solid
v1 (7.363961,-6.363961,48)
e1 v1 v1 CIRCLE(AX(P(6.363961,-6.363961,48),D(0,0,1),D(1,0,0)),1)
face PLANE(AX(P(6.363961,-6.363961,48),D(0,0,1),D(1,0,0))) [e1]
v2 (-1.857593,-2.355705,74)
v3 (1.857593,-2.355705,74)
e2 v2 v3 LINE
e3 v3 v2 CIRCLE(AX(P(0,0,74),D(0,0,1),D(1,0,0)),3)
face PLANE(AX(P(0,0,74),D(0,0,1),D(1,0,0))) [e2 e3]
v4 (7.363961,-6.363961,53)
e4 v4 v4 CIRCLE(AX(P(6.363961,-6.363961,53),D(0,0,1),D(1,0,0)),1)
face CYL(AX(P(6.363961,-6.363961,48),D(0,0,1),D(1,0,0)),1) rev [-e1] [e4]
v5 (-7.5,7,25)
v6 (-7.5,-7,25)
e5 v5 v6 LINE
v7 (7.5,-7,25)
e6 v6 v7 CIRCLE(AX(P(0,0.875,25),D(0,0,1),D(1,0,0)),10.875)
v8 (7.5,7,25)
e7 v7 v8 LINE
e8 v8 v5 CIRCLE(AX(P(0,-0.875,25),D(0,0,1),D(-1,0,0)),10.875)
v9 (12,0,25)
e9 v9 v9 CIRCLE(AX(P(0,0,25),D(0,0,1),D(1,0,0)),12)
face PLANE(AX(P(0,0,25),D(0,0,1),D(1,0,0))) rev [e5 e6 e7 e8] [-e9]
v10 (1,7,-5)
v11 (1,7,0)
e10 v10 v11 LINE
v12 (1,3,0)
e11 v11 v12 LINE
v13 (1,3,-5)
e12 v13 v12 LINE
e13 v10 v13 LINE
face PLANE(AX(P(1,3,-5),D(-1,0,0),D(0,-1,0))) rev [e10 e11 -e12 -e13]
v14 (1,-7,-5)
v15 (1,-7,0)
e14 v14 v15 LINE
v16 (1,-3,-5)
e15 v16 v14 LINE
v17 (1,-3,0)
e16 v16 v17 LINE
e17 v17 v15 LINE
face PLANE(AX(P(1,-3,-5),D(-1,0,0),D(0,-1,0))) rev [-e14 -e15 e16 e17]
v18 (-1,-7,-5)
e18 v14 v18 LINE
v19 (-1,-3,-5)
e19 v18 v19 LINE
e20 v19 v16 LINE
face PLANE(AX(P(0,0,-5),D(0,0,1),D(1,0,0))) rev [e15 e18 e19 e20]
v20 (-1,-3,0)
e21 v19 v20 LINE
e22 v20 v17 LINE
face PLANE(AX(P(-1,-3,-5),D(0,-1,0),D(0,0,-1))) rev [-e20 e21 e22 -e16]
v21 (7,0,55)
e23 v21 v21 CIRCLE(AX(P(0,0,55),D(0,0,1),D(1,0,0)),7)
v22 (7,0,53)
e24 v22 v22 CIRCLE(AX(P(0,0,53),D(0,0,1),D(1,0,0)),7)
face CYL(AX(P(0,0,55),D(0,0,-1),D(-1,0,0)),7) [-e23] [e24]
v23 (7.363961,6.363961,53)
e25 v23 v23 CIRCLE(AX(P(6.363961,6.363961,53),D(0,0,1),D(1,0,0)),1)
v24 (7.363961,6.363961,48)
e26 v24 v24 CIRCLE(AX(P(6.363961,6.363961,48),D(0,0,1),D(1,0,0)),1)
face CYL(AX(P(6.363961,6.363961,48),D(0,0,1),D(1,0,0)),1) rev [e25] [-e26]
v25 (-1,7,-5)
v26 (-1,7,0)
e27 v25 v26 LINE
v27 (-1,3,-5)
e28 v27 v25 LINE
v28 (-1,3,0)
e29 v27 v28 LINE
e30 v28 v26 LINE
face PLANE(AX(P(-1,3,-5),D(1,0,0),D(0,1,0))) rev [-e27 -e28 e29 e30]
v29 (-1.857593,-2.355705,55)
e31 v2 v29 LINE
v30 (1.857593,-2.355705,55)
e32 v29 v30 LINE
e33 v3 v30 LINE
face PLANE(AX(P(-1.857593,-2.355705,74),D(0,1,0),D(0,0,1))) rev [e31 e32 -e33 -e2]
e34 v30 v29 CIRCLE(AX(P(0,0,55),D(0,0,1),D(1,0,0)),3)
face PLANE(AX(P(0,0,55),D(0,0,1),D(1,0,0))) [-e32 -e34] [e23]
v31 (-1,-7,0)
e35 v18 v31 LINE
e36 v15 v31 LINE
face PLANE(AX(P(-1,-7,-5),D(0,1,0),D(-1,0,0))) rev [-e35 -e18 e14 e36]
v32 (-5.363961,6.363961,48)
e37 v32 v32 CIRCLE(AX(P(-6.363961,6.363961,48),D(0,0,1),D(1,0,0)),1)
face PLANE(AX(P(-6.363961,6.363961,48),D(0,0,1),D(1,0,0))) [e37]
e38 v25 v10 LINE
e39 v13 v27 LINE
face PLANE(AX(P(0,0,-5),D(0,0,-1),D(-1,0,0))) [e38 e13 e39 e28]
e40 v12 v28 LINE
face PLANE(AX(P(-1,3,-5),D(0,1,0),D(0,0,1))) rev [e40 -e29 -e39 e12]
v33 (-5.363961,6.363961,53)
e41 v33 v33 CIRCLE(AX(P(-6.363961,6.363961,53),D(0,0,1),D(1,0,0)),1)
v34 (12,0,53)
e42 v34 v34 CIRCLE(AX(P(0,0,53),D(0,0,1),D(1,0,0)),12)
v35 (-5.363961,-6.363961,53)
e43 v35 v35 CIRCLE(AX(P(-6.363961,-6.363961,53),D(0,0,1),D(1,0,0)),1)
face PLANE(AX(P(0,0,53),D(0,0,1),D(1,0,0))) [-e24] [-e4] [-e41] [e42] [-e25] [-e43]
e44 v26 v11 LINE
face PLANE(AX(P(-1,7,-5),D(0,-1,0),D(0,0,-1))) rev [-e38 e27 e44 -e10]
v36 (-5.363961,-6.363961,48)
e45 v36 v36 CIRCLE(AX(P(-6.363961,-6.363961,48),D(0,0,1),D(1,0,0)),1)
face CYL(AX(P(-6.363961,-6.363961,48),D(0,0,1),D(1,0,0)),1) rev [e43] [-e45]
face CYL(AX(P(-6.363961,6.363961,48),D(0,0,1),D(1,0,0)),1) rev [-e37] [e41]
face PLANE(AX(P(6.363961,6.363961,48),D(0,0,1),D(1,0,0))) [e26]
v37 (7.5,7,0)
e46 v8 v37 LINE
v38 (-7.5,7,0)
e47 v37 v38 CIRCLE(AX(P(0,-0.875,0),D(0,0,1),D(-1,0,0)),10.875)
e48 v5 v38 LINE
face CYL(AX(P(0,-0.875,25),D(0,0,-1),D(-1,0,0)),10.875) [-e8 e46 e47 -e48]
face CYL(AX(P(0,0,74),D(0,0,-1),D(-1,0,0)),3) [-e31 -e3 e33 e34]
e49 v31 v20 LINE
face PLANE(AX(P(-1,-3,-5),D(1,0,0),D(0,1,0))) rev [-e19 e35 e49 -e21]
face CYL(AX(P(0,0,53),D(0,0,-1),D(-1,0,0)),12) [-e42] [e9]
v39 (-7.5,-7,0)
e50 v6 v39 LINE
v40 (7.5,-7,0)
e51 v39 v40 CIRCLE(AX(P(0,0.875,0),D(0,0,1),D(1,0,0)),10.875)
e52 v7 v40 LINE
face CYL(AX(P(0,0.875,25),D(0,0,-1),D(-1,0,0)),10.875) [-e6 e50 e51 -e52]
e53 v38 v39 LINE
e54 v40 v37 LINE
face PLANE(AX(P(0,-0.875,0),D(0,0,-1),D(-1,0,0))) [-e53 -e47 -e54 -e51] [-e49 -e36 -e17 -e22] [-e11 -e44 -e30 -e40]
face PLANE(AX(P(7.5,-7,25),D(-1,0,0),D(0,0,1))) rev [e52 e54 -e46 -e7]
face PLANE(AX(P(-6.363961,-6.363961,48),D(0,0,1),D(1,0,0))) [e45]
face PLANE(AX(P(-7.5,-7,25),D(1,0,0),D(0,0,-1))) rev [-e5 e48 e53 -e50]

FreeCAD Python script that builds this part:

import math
import FreeCAD as App
import Part
import Sketcher

V = App.Vector


def add_polygon(sketch, points):
    """Adds a closed chain of lines whose ends are joined by coincident constraints."""
    first, n = sketch.GeometryCount, len(points)
    for a, b in zip(points, points[1:] + points[:1]):
        sketch.addGeometry(Part.LineSegment(App.Vector(*a, 0), App.Vector(*b, 0)), False)
    for i in range(n):
        sketch.addConstraint(Sketcher.Constraint("Coincident", first + i, 2, first + (i + 1) % n, 1))

doc = App.newDocument("Part")
params = doc.addObject("Spreadsheet::Sheet", "Params")
for row, (alias, value) in enumerate([
    ("sketch1_height", "14 mm"),
    ("pad1_length", "25 mm"),
    ("sketch2_width", "2 mm"),
    ("sketch2_height", "4 mm"),
    ("pad2_length", "5 mm"),
    ("sketch3_diameter", "24 mm"),
    ("pad3_length", "28 mm"),
    ("sketch4_diameter", "14 mm"),
    ("pad4_length", "2 mm"),
    ("sketch5_diameter", "2 mm"),
    ("pocket1_length", "5 mm"),
    ("sketch6_radius", "3 mm"),
    ("pad5_length", "19 mm"),
], start=1):
    params.set(f"A{row}", alias)
    params.set(f"B{row}", "=" + value)
    params.setAlias(f"B{row}", alias)

body = doc.addObject("PartDesign::Body", "Body")

# Sketch on XY plane
sketch1 = body.newObject("Sketcher::SketchObject", "Sketch")
sketch1.AttachmentSupport = (doc.getObject("XY_Plane"), [""])
sketch1.MapMode = "FlatFace"
sketch1.addGeometry([
    Part.LineSegment(V(8, -7, 0), V(8, 7, 0)),
    Part.ArcOfCircle(Part.Circle(V(0, -1, 0), V(0, 0, 1), 11), math.radians(46), math.radians(134)),
    Part.LineSegment(V(-8, 7, 0), V(-8, -7, 0)),
    Part.ArcOfCircle(Part.Circle(V(0, 1, 0), V(0, 0, 1), 11), math.radians(-134), math.radians(-46)),
], False)
sketch1.addConstraint([
    Sketcher.Constraint("Coincident", 0, 2, 1, 1),
    Sketcher.Constraint("Coincident", 1, 2, 2, 1),
    Sketcher.Constraint("Coincident", 2, 2, 3, 1),
    Sketcher.Constraint("Coincident", 3, 2, 0, 1),
    Sketcher.Constraint("Vertical", 0),
    Sketcher.Constraint("Vertical", 2),
    Sketcher.Constraint("Equal", 1, 3),
    Sketcher.Constraint("Symmetric", 1, 3, 3, 3, -1, 1),
    Sketcher.Constraint("Symmetric", 0, 2, 1, 2, -2),
    Sketcher.Constraint("DistanceY", 0, 1, 0, 2, 14.0),
    Sketcher.Constraint("Radius", 1, 10.875),
    Sketcher.Constraint("DistanceX", 1, 2, 0, 2, 15.0),
])
sketch1.setExpression("Constraints[9]", "Params.sketch1_height")
pad1 = body.newObject("PartDesign::Pad", "Pad")
pad1.Profile = sketch1
pad1.setExpression("Length", "Params.pad1_length")

# Sketch on XY plane
sketch2 = body.newObject("Sketcher::SketchObject", "Sketch001")
sketch2.AttachmentSupport = (doc.getObject("XY_Plane"), [""])
sketch2.MapMode = "FlatFace"
add_polygon(sketch2, [(1, 7), (1, 3), (-1, 3), (-1, 7)])  # lines 0-3
add_polygon(sketch2, [(1, -3), (1, -7), (-1, -7), (-1, -3)])  # lines 4-7
sketch2.addConstraint([
    Sketcher.Constraint("Vertical", 0),
    Sketcher.Constraint("Horizontal", 1),
    Sketcher.Constraint("Vertical", 2),
    Sketcher.Constraint("Horizontal", 3),
    Sketcher.Constraint("Vertical", 4),
    Sketcher.Constraint("Horizontal", 5),
    Sketcher.Constraint("Vertical", 6),
    Sketcher.Constraint("Horizontal", 7),
    Sketcher.Constraint("Symmetric", 2, 2, 4, 2, -1, 1),
    Sketcher.Constraint("Symmetric", 0, 2, 6, 2, -1, 1),
    Sketcher.Constraint("Vertical", 3, 2, 4, 2),
    Sketcher.Constraint("DistanceX", 1, 2, 1, 1, 2.0),
    Sketcher.Constraint("DistanceY", 0, 2, 0, 1, 4.0),
    Sketcher.Constraint("DistanceY", -1, 1, 0, 2, 3.0),
])
sketch2.setExpression("Constraints[19]", "Params.sketch2_width")
sketch2.setExpression("Constraints[20]", "Params.sketch2_height")
pad2 = body.newObject("PartDesign::Pad", "Pad001")
pad2.Profile = sketch2
pad2.setExpression("Length", "Params.pad2_length")
pad2.Reversed = True

# Sketch on XY plane
sketch3 = body.newObject("Sketcher::SketchObject", "Sketch002")
sketch3.AttachmentSupport = (doc.getObject("XY_Plane"), [""])
sketch3.MapMode = "FlatFace"
sketch3.AttachmentOffset = App.Placement(V(0, 0, 25), App.Rotation())
sketch3.addGeometry(Part.Circle(V(0, 0, 0), V(0, 0, 1), 12), False)
sketch3.addConstraint([
    Sketcher.Constraint("Coincident", 0, 3, -1, 1),
    Sketcher.Constraint("Diameter", 0, 24.0),
])
sketch3.setExpression("Constraints[1]", "Params.sketch3_diameter")
pad3 = body.newObject("PartDesign::Pad", "Pad002")
pad3.Profile = sketch3
pad3.setExpression("Length", "Params.pad3_length")

# Sketch on XY plane
sketch4 = body.newObject("Sketcher::SketchObject", "Sketch003")
sketch4.AttachmentSupport = (doc.getObject("XY_Plane"), [""])
sketch4.MapMode = "FlatFace"
sketch4.AttachmentOffset = App.Placement(V(0, 0, 53), App.Rotation())
sketch4.addGeometry(Part.Circle(V(0, 0, 0), V(0, 0, 1), 7), False)
sketch4.addConstraint([
    Sketcher.Constraint("Coincident", 0, 3, -1, 1),
    Sketcher.Constraint("Diameter", 0, 14.0),
])
sketch4.setExpression("Constraints[1]", "Params.sketch4_diameter")
pad4 = body.newObject("PartDesign::Pad", "Pad003")
pad4.Profile = sketch4
pad4.setExpression("Length", "Params.pad4_length")

# Sketch on XY plane
sketch5 = body.newObject("Sketcher::SketchObject", "Sketch004")
sketch5.AttachmentSupport = (doc.getObject("XY_Plane"), [""])
sketch5.MapMode = "FlatFace"
sketch5.AttachmentOffset = App.Placement(V(0, 0, 53), App.Rotation())
sketch5.addGeometry([
    Part.Circle(V(-6.4, 6.4, 0), V(0, 0, 1), 1),
    Part.Circle(V(6.4, 6.4, 0), V(0, 0, 1), 1),
    Part.Circle(V(6.4, -6.4, 0), V(0, 0, 1), 1),
    Part.Circle(V(-6.4, -6.4, 0), V(0, 0, 1), 1),
], False)
sketch5.addConstraint([
    Sketcher.Constraint("Equal", 0, 1),
    Sketcher.Constraint("Equal", 1, 2),
    Sketcher.Constraint("Equal", 2, 3),
    Sketcher.Constraint("Symmetric", 0, 3, 2, 3, -1, 1),
    Sketcher.Constraint("Symmetric", 1, 3, 3, 3, -1, 1),
    Sketcher.Constraint("Symmetric", 0, 3, 1, 3, -2),
    Sketcher.Constraint("Diameter", 0, 2.0),
    Sketcher.Constraint("DistanceX", 0, 3, -1, 1, 6.363961),
    Sketcher.Constraint("DistanceY", -1, 1, 0, 3, 6.363961),
])
sketch5.setExpression("Constraints[6]", "Params.sketch5_diameter")
pocket1 = body.newObject("PartDesign::Pocket", "Pocket")
pocket1.Profile = sketch5
pocket1.setExpression("Length", "Params.pocket1_length")

# Sketch on XY plane
sketch6 = body.newObject("Sketcher::SketchObject", "Sketch005")
sketch6.AttachmentSupport = (doc.getObject("XY_Plane"), [""])
sketch6.MapMode = "FlatFace"
sketch6.AttachmentOffset = App.Placement(V(0, 0, 55), App.Rotation())
sketch6.addGeometry([
    Part.LineSegment(V(-1.9, -2.4, 0), V(1.9, -2.4, 0)),
    Part.ArcOfCircle(Part.Circle(V(0, 0, 0), V(0, 0, 1), 3), math.radians(-52), math.radians(232)),
], False)
sketch6.addConstraint([
    Sketcher.Constraint("Coincident", 0, 1, 1, 2),
    Sketcher.Constraint("Coincident", 1, 1, 0, 2),
    Sketcher.Constraint("Horizontal", 0),
    Sketcher.Constraint("Coincident", 1, 3, -1, 1),
    Sketcher.Constraint("Radius", 1, 3.0),
    Sketcher.Constraint("DistanceX", 0, 1, 0, 2, 3.715187),
])
sketch6.setExpression("Constraints[4]", "Params.sketch6_radius")
pad5 = body.newObject("PartDesign::Pad", "Pad004")
pad5.Profile = sketch6
pad5.setExpression("Length", "Params.pad5_length")

doc.recompute()
